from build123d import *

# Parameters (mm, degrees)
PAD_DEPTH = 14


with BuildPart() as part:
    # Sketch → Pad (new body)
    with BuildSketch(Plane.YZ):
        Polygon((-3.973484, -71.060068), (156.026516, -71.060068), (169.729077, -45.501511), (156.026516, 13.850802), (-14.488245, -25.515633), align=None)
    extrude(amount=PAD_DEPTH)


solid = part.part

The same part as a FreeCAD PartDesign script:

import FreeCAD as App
import Part
import Sketcher

V = App.Vector
Q = App.Units.Quantity

doc = App.newDocument("Part")
body = doc.addObject("PartDesign::Body", "Body")

# Sketch on YZ plane
sketch1 = body.newObject("Sketcher::SketchObject", "Sketch")
sketch1.AttachmentSupport = (doc.getObject("YZ_Plane"), [""])
sketch1.MapMode = "FlatFace"
sketch1.addGeometry(Part.LineSegment(V(-3.973484, -71.060068, 0), V(156.026516, -71.060068, 0)), False)
sketch1.addGeometry(Part.LineSegment(V(156.026516, -71.060068, 0), V(169.729077, -45.501511, 0)), False)
sketch1.addGeometry(Part.LineSegment(V(169.729077, -45.501511, 0), V(156.026516, 13.850802, 0)), False)
sketch1.addGeometry(Part.LineSegment(V(156.026516, 13.850802, 0), V(-14.488245, -25.515633, 0)), False)
sketch1.addGeometry(Part.LineSegment(V(-14.488245, -25.515633, 0), V(-3.973484, -71.060068, 0)), False)
sketch1.addConstraint(Sketcher.Constraint("Coincident", 0, 2, 1, 1))
sketch1.addConstraint(Sketcher.Constraint("Coincident", 1, 2, 2, 1))
sketch1.addConstraint(Sketcher.Constraint("Coincident", 2, 2, 3, 1))
sketch1.addConstraint(Sketcher.Constraint("Coincident", 3, 2, 4, 1))
sketch1.addConstraint(Sketcher.Constraint("Coincident", 4, 2, 0, 1))
sketch1.addConstraint(Sketcher.Constraint("Horizontal", 0))
sketch1.addConstraint(Sketcher.Constraint("Perpendicular", 2, 3))
sketch1.addConstraint(Sketcher.Constraint("Perpendicular", 3, 4))
sketch1.addConstraint(Sketcher.Constraint("Vertical", 0, 2, 2, 2))
sketch1.addConstraint(Sketcher.Constraint("DistanceX", 0, 1, 0, 2, Q("160 mm")))
sketch1.addConstraint(Sketcher.Constraint("Angle", 2, Q("103 deg")))
sketch1.addConstraint(Sketcher.Constraint("Distance", 1, Q("29 mm")))
sketch1.addConstraint(Sketcher.Constraint("Distance", 3, Q("175 mm")))
sketch1.addConstraint(Sketcher.Constraint("DistanceY", 0, 2, -1, 1, Q("71.060068 mm")))
sketch1.addConstraint(Sketcher.Constraint("DistanceX", -1, 1, 0, 2, Q("156.026516 mm")))
pad1 = body.newObject("PartDesign::Pad", "Pad")
pad1.Profile = sketch1
pad1.Length = 14

doc.recompute()
